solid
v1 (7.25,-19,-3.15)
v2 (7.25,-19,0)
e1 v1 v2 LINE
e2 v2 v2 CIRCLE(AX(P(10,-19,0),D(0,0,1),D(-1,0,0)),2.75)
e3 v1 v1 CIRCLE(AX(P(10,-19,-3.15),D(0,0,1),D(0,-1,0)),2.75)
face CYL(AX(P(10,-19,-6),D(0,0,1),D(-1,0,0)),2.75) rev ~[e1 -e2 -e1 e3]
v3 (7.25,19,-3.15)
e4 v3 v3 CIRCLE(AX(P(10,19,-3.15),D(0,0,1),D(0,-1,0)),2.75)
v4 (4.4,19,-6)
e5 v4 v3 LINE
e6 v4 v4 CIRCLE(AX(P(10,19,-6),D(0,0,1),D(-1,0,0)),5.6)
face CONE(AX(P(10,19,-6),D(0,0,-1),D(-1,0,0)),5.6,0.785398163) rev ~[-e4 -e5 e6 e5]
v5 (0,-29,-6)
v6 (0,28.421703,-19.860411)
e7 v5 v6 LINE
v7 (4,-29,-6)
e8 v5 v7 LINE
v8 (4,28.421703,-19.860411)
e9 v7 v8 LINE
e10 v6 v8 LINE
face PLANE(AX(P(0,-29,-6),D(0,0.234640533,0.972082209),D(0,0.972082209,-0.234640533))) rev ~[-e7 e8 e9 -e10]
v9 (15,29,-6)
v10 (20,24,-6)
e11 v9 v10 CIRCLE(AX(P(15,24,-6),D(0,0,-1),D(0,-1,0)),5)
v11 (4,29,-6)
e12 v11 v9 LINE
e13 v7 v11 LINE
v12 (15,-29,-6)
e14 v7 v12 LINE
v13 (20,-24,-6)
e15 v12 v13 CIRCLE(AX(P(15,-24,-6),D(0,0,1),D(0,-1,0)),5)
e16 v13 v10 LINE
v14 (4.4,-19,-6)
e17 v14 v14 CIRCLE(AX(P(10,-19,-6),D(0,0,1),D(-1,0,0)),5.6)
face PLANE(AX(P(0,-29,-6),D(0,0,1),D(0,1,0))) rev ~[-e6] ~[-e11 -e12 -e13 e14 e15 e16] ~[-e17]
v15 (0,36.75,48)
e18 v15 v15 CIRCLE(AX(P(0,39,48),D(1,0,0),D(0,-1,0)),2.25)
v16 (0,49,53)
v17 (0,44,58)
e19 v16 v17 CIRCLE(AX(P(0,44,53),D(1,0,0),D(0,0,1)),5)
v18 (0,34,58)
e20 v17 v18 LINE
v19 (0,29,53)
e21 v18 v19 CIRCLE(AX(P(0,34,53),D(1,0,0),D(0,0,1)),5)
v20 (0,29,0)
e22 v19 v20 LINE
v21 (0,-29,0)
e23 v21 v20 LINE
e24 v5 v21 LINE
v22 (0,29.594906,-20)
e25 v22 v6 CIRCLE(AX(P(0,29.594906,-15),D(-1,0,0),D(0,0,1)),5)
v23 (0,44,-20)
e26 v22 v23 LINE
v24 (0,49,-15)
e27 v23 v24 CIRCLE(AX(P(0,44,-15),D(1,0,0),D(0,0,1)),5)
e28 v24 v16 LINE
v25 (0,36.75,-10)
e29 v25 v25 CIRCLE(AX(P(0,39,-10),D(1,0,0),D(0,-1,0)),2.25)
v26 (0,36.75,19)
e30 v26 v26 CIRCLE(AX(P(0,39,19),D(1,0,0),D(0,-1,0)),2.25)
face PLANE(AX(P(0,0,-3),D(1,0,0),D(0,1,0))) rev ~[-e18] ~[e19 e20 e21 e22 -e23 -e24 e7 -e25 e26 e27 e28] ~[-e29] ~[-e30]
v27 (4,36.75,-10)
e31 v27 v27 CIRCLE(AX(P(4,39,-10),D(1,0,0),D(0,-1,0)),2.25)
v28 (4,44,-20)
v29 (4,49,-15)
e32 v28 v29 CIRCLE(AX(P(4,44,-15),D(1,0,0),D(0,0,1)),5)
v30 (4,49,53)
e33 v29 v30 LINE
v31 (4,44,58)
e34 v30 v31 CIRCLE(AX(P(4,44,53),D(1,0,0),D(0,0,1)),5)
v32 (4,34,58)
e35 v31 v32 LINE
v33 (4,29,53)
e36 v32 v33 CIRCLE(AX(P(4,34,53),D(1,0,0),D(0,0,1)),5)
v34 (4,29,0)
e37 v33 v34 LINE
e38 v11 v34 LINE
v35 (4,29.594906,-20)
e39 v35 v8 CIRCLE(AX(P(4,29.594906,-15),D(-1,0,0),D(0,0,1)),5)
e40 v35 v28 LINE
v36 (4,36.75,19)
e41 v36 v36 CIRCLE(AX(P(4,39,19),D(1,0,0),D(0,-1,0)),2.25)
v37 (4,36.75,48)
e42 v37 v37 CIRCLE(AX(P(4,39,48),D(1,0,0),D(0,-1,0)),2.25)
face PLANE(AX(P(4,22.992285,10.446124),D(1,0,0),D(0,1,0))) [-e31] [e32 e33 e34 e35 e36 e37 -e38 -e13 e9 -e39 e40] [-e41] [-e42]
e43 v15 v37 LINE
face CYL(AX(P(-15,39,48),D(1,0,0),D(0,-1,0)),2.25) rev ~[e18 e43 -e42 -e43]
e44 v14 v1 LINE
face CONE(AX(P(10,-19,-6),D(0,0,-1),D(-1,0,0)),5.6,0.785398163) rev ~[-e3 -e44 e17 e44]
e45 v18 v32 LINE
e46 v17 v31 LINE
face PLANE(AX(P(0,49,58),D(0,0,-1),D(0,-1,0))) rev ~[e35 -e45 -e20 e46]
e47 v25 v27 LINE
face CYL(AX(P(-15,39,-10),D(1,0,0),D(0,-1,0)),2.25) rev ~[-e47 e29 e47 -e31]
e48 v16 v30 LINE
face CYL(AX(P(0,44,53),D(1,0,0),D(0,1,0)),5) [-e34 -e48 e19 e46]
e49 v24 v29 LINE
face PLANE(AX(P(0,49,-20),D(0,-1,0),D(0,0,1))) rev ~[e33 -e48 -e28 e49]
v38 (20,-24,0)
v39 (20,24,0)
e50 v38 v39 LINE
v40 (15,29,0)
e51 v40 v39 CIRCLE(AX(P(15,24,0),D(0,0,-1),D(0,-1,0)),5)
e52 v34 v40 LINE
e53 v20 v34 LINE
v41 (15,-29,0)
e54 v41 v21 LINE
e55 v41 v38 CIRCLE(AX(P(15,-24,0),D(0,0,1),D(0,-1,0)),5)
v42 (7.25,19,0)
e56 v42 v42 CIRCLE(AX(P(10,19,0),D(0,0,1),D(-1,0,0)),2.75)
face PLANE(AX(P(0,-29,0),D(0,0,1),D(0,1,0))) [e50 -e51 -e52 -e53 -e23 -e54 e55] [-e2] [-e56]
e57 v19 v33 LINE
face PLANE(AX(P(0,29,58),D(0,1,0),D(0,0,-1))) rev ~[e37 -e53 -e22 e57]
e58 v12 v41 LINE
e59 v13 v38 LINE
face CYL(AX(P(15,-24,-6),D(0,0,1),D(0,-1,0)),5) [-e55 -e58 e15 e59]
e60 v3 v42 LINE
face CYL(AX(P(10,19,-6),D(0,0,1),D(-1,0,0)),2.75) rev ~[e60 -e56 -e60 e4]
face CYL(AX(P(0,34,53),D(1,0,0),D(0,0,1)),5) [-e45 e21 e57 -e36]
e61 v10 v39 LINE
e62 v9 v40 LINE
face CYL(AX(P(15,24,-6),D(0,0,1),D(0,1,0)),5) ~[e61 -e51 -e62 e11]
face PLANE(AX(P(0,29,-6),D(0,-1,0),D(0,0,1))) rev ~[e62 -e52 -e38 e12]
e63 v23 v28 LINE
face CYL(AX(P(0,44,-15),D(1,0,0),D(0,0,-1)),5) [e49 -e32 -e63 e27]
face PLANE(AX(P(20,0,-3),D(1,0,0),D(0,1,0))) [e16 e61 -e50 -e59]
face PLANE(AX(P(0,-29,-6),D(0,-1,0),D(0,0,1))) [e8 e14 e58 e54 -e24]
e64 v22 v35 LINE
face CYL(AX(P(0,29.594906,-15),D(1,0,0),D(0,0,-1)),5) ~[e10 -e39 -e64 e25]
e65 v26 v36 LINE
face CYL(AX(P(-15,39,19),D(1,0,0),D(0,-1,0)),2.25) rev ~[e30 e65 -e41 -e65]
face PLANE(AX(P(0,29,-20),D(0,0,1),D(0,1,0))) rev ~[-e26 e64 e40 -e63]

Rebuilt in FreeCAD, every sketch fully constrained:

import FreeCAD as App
import Part
import Sketcher
Q = App.Units.Quantity


def edges_at(feature, points):
    """Names of the edges that pass closest to the given points."""
    edges = feature.Shape.Edges
    near = lambda p: min(range(len(edges)), key=lambda i: edges[i].distToShape(Part.Vertex(*p))[0])
    return sorted({f"Edge{near(p) + 1}" for p in points})


def add_polygon(sketch, points):
    """Adds a closed chain of lines whose ends are joined by coincident constraints."""
    first, n = sketch.GeometryCount, len(points)
    for a, b in zip(points, points[1:] + points[:1]):
        sketch.addGeometry(Part.LineSegment(App.Vector(*a, 0), App.Vector(*b, 0)), False)
    for i in range(n):
        sketch.addConstraint(Sketcher.Constraint("Coincident", first + i, 2, first + (i + 1) % n, 1))

doc = App.newDocument("Part")
body = doc.addObject("PartDesign::Body", "Body")

sketch1 = body.newObject("Sketcher::SketchObject", "Sketch")
sketch1.AttachmentSupport = (doc.getObject("YZ_Plane"), [""])
sketch1.MapMode = "FlatFace"
add_polygon(sketch1, [(-29, 0), (-29, -6), (29, -6), (29, 0)])
sketch1.addConstraint([
    Sketcher.Constraint("Vertical", 0),
    Sketcher.Constraint("Horizontal", 1),
    Sketcher.Constraint("Vertical", 2),
    Sketcher.Constraint("Horizontal", 3),
    Sketcher.Constraint("Symmetric", 2, 2, 3, 2, -1, 1),
    Sketcher.Constraint("DistanceX", 1, 1, 1, 2, Q("58 mm")),
    Sketcher.Constraint("DistanceY", 0, 2, 0, 1, Q("6 mm")),
])
pad1 = body.newObject("PartDesign::Pad", "Pad")
pad1.Profile = sketch1
pad1.Length = 20

sketch2 = body.newObject("Sketcher::SketchObject", "Sketch001")
sketch2.AttachmentSupport = (doc.getObject("YZ_Plane"), [""])
sketch2.MapMode = "FlatFace"
add_polygon(sketch2, [(-29, 0), (-29, -6), (29, -20), (49, -20), (49, 58), (29, 58), (29, 0)])
sketch2.addConstraint([
    Sketcher.Constraint("Vertical", 0),
    Sketcher.Constraint("Horizontal", 2),
    Sketcher.Constraint("Vertical", 3),
    Sketcher.Constraint("Horizontal", 4),
    Sketcher.Constraint("Vertical", 5),
    Sketcher.Constraint("Horizontal", 6),
    Sketcher.Constraint("Symmetric", 5, 2, 6, 2, -1, 1),
    Sketcher.Constraint("Vertical", 1, 2, 4, 2),
    Sketcher.Constraint("Equal", 6, 5),
    Sketcher.Constraint("DistanceX", 2, 1, 2, 2, Q("20 mm")),
    Sketcher.Constraint("DistanceX", 6, 2, 6, 1, Q("58 mm")),
    Sketcher.Constraint("DistanceY", 0, 2, 0, 1, Q("6 mm")),
    Sketcher.Constraint("DistanceY", 3, 1, 3, 2, Q("78 mm")),
])
pad2 = body.newObject("PartDesign::Pad", "Pad001")
pad2.Profile = sketch2
pad2.Length = 4

sketch3 = body.newObject("Sketcher::SketchObject", "Sketch002")
sketch3.AttachmentSupport = (doc.getObject("XY_Plane"), [""])
sketch3.MapMode = "FlatFace"
sketch3.AttachmentOffset = App.Placement(App.Vector(0, 0, -6), App.Rotation())
sketch3.addGeometry([
    Part.Circle(App.Vector(10, 19, 0), App.Vector(0, 0, 1), 2.75),
    Part.Circle(App.Vector(10, -19, 0), App.Vector(0, 0, 1), 2.75),
], False)
sketch3.addConstraint([
    Sketcher.Constraint("Equal", 0, 1),
    Sketcher.Constraint("Symmetric", 0, 3, 1, 3, -1),
    Sketcher.Constraint("Diameter", 0, Q("5.5 mm")),
    Sketcher.Constraint("DistanceX", -1, 1, 0, 3, Q("10 mm")),
    Sketcher.Constraint("DistanceY", -1, 1, 0, 3, Q("19 mm")),
])
doc.recompute()
hole = body.newObject("PartDesign::Hole", "Hole")
hole.Profile = sketch3
hole.ThreadType = "None"
hole.Diameter = 5.5
hole.DepthType = "Dimension"
hole.Depth = 15
hole.DrillPoint = "Angled"
hole.DrillPointAngle = 118
hole.HoleCutType = "Countersink"
hole.HoleCutDiameter = 11.2
hole.HoleCutCountersinkAngle = 90
hole.Reversed = True
doc.recompute()

fillet = body.newObject("PartDesign::Fillet", "Fillet")
fillet.Base = (hole, edges_at(hole, [
    (20, -29, -3),
    (20, 29, -3),
    (2, 29, 58),
    (2, 49, 58),
    (2, 49, -20),
    (2, 29, -20),
]))
fillet.Radius = 5

sketch4 = body.newObject("Sketcher::SketchObject", "Sketch003")
sketch4.AttachmentSupport = (doc.getObject("YZ_Plane"), [""])
sketch4.MapMode = "FlatFace"
sketch4.addGeometry([
    Part.Circle(App.Vector(39, 48, 0), App.Vector(0, 0, 1), 2.25),
    Part.Circle(App.Vector(39, 19, 0), App.Vector(0, 0, 1), 2.25),
    Part.Circle(App.Vector(39, -10, 0), App.Vector(0, 0, 1), 2.25),
], False)
sketch4.addConstraint([
    Sketcher.Constraint("Equal", 0, 1),
    Sketcher.Constraint("Equal", 1, 2),
    Sketcher.Constraint("Vertical", 0, 3, 1, 3),
    Sketcher.Constraint("Vertical", 1, 3, 2, 3),
    Sketcher.Constraint("Diameter", 0, Q("4.5 mm")),
    Sketcher.Constraint("DistanceX", -1, 1, 0, 3, Q("39 mm")),
    Sketcher.Constraint("DistanceY", -1, 1, 0, 3, Q("48 mm")),
    Sketcher.Constraint("DistanceY", -1, 1, 1, 3, Q("19 mm")),
    Sketcher.Constraint("DistanceY", 2, 3, -1, 1, Q("10 mm")),
])
doc.recompute()
hole2 = body.newObject("PartDesign::Hole", "Hole001")
hole2.Profile = sketch4
hole2.ThreadType = "None"
hole2.Diameter = 4.5
hole2.DepthType = "Dimension"
hole2.Depth = 15
hole2.DrillPoint = "Angled"
hole2.DrillPointAngle = 118
hole2.Reversed = True

doc.recompute()
